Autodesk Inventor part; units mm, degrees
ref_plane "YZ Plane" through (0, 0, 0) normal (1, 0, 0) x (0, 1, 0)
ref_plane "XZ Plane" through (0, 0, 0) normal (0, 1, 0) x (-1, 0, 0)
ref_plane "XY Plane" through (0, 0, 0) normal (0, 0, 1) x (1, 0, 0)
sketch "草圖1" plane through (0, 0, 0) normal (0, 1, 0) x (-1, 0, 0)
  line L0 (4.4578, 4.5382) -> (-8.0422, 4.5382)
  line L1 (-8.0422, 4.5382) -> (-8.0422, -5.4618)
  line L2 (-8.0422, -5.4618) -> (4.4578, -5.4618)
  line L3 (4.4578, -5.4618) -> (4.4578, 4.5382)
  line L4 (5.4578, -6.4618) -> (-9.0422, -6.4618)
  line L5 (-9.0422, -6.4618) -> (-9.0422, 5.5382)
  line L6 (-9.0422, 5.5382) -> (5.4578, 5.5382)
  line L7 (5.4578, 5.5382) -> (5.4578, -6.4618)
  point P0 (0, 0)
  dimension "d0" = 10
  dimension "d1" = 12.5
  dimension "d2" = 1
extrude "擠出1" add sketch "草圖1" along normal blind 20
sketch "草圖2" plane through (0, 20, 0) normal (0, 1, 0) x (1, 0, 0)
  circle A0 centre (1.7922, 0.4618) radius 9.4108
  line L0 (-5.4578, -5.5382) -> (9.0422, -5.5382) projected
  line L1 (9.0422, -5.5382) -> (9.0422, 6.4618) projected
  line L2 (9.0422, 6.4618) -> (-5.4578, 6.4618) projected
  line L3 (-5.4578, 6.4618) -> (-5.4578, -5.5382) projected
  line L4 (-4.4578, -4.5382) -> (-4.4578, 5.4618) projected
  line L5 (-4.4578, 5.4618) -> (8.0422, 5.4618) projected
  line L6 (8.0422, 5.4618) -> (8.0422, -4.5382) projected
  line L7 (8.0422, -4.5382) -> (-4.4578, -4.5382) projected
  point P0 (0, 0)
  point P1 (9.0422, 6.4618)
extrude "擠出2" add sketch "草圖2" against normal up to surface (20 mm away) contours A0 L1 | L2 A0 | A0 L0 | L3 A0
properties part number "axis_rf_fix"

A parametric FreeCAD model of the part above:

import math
import FreeCAD as App
import Part
import Sketcher


def add_polygon(sketch, points):
    """Adds a closed chain of lines whose ends are joined by coincident constraints."""
    first, n = sketch.GeometryCount, len(points)
    for a, b in zip(points, points[1:] + points[:1]):
        sketch.addGeometry(Part.LineSegment(App.Vector(*a, 0), App.Vector(*b, 0)), False)
    for i in range(n):
        sketch.addConstraint(Sketcher.Constraint("Coincident", first + i, 2, first + (i + 1) % n, 1))

doc = App.newDocument("Part")
params = doc.addObject("Spreadsheet::Sheet", "Params")
for row, (alias, value) in enumerate([
    ("sketch1_height", "10 mm"),
    ("sketch1_width", "12.5 mm"),
    ("pad1_length", "20 mm"),
    ("sketch2_height", "12 mm"),
    ("sketch2_width", "14.5 mm"),
    ("pad2_length", "20 mm"),
], start=1):
    params.set(f"A{row}", alias)
    params.set(f"B{row}", "=" + value)
    params.setAlias(f"B{row}", alias)

body = doc.addObject("PartDesign::Body", "Body")

# Sketch on XZ plane
sketch1 = doc.addObject("Sketcher::SketchObject", "Sketch")
body.addObject(sketch1)
sketch1.AttachmentSupport = (doc.XZ_Plane, [""])
sketch1.MapMode = "FlatFace"
add_polygon(sketch1, [(9, -6), (-5, -6), (-5, 6), (9, 6)])  # lines 0-3
add_polygon(sketch1, [(8, 5), (-4, 5), (-4, -5), (8, -5)])  # lines 4-7
sketch1.addConstraint([
    Sketcher.Constraint("Horizontal", 0),
    Sketcher.Constraint("Vertical", 1),
    Sketcher.Constraint("Horizontal", 2),
    Sketcher.Constraint("Vertical", 3),
    Sketcher.Constraint("Horizontal", 4),
    Sketcher.Constraint("Vertical", 5),
    Sketcher.Constraint("Horizontal", 6),
    Sketcher.Constraint("Vertical", 7),
    Sketcher.Constraint("DistanceY", 5, 2, 5, 1, 10.0),
    Sketcher.Constraint("DistanceX", 4, 2, 4, 1, 12.5),
    Sketcher.Constraint("DistanceX", 1, 2, 4, 2, 1.0),
    Sketcher.Constraint("DistanceY", 4, 2, 1, 2, 1.0),
    Sketcher.Constraint("DistanceY", 0, 2, 5, 2, 1.0),
    Sketcher.Constraint("DistanceX", 6, 2, 3, 2, 1.0),
    Sketcher.Constraint("DistanceX", 0, 2, -1, 1, 5.4578),
    Sketcher.Constraint("DistanceY", 0, 2, -1, 1, 6.4618),
])
sketch1.setExpression("Constraints[16]", "Params.sketch1_height")
sketch1.setExpression("Constraints[17]", "Params.sketch1_width")
pad1 = doc.addObject("PartDesign::Pad", "Pad")
body.addObject(pad1)
pad1.Profile = sketch1
pad1.setExpression("Length", "Params.pad1_length")
pad1.Reversed = True

# Sketch on XZ plane
sketch2 = doc.addObject("Sketcher::SketchObject", "Sketch001")
body.addObject(sketch2)
sketch2.AttachmentSupport = (doc.XZ_Plane, [""])
sketch2.MapMode = "FlatFace"
sketch2.AttachmentOffset = App.Placement(App.Vector(0, 0, -20), App.Rotation())
sketch2.addGeometry([
    Part.ArcOfCircle(Part.Circle(App.Vector(2, 0, 0), App.Vector(0, 0, 1), 9), math.radians(-40), math.radians(40)),  # 0
    Part.LineSegment(App.Vector(9, 6, 0), App.Vector(9, -6, 0)),  # 1
    Part.LineSegment(App.Vector(-5, -6, 0), App.Vector(9, -6, 0)),  # 2
    Part.ArcOfCircle(Part.Circle(App.Vector(2, 0, 0), App.Vector(0, 0, 1), 9), math.radians(-140), math.radians(-40)),  # 3
    Part.ArcOfCircle(Part.Circle(App.Vector(2, 0, 0), App.Vector(0, 0, 1), 9), math.radians(40), math.radians(140)),  # 4
    Part.LineSegment(App.Vector(-5, 6, 0), App.Vector(9, 6, 0)),  # 5
    Part.LineSegment(App.Vector(-5, 6, 0), App.Vector(-5, -6, 0)),  # 6
    Part.ArcOfCircle(Part.Circle(App.Vector(2, 0, 0), App.Vector(0, 0, 1), 9), math.radians(140), math.radians(220)),  # 7
], False)
sketch2.addConstraint([
    Sketcher.Constraint("Coincident", 0, 1, 1, 2),
    Sketcher.Constraint("Coincident", 1, 1, 0, 2),
    Sketcher.Constraint("Coincident", 2, 1, 3, 1),
    Sketcher.Constraint("Coincident", 3, 2, 2, 2),
    Sketcher.Constraint("Coincident", 4, 1, 5, 2),
    Sketcher.Constraint("Coincident", 5, 1, 4, 2),
    Sketcher.Constraint("Coincident", 6, 1, 7, 1),
    Sketcher.Constraint("Coincident", 7, 2, 6, 2),
    Sketcher.Constraint("Vertical", 1),
    Sketcher.Constraint("Horizontal", 2),
    Sketcher.Constraint("Horizontal", 5),
    Sketcher.Constraint("Vertical", 6),
    Sketcher.Constraint("Coincident", 3, 3, 0, 3),
    Sketcher.Constraint("Coincident", 4, 3, 0, 3),
    Sketcher.Constraint("Coincident", 7, 3, 0, 3),
    Sketcher.Constraint("Coincident", 3, 2, 0, 1),
    Sketcher.Constraint("Coincident", 4, 1, 1, 1),
    Sketcher.Constraint("Coincident", 6, 1, 5, 1),
    Sketcher.Constraint("DistanceY", 1, 2, 1, 1, 12.0),
    Sketcher.Constraint("DistanceX", 2, 1, 2, 2, 14.5),
    Sketcher.Constraint("DistanceX", -1, 1, 0, 3, 1.7922),
    Sketcher.Constraint("DistanceY", 0, 3, -1, 1, 0.4618),
])
sketch2.setExpression("Constraints[18]", "Params.sketch2_height")
sketch2.setExpression("Constraints[19]", "Params.sketch2_width")
pad2 = doc.addObject("PartDesign::Pad", "Pad001")
body.addObject(pad2)
pad2.Profile = sketch2
pad2.setExpression("Length", "Params.pad2_length")

doc.recompute()
